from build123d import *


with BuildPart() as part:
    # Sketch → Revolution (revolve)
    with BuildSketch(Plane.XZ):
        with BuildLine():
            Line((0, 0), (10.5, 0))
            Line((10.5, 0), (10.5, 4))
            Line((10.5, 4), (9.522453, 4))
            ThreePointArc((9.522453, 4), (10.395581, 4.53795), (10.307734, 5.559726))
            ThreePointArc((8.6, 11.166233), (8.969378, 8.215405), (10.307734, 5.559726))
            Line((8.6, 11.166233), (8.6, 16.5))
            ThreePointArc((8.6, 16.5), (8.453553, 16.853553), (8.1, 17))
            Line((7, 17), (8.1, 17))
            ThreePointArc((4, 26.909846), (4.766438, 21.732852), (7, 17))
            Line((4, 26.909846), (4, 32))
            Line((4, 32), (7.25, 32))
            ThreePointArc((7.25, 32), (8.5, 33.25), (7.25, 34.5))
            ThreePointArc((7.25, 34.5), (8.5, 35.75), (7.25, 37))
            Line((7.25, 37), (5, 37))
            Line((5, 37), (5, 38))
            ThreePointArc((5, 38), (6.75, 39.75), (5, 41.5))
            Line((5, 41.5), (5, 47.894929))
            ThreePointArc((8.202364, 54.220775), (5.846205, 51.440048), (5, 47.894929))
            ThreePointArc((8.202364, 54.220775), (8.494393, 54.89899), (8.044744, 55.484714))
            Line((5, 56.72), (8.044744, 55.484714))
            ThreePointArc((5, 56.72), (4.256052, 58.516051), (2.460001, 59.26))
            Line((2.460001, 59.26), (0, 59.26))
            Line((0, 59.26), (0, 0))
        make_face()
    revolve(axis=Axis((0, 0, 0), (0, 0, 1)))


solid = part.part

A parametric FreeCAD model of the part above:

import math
import FreeCAD as App
import Part
import Sketcher

doc = App.newDocument("Part")
body = doc.addObject("PartDesign::Body", "Body")

# Sketch on XZ plane
sketch1 = doc.addObject("Sketcher::SketchObject", "Sketch")
body.addObject(sketch1)
sketch1.AttachmentSupport = (doc.XZ_Plane, [""])
sketch1.MapMode = "FlatFace"
sketch1.addGeometry([
    Part.LineSegment(App.Vector(0, 0, 0), App.Vector(10.5, 0, 0)),  # 0
    Part.LineSegment(App.Vector(10.5, 0, 0), App.Vector(10.5, 4, 0)),  # 1
    Part.LineSegment(App.Vector(10.5, 4, 0), App.Vector(9.5, 4, 0)),  # 2
    Part.ArcOfCircle(Part.Circle(App.Vector(9.5, 5, 0), App.Vector(0, 0, 1), 1), math.radians(-90), math.radians(37)),  # 3
    Part.ArcOfCircle(Part.Circle(App.Vector(17.3, 10.8, 0), App.Vector(0, 0, 1), 8.7), math.radians(177), math.radians(217)),  # 4
    Part.LineSegment(App.Vector(8.6, 11.2, 0), App.Vector(8.6, 16.5, 0)),  # 5
    Part.ArcOfCircle(Part.Circle(App.Vector(8.1, 16.5, 0), App.Vector(0, 0, 1), 0.5), math.radians(0), math.radians(90)),  # 6
    Part.LineSegment(App.Vector(8.1, 17, 0), App.Vector(7, 17, 0)),  # 7
    Part.ArcOfCircle(Part.Circle(App.Vector(21.9, 26.9, 0), App.Vector(0, 0, 1), 17.9), math.radians(180), math.radians(214)),  # 8
    Part.LineSegment(App.Vector(4, 26.9, 0), App.Vector(4, 32, 0)),  # 9
    Part.LineSegment(App.Vector(4, 32, 0), App.Vector(7.2, 32, 0)),  # 10
    Part.ArcOfCircle(Part.Circle(App.Vector(7.2, 33.2, 0), App.Vector(0, 0, 1), 1.2), math.radians(-90), math.radians(90)),  # 11
    Part.ArcOfCircle(Part.Circle(App.Vector(7.2, 35.8, 0), App.Vector(0, 0, 1), 1.2), math.radians(-90), math.radians(90)),  # 12
    Part.LineSegment(App.Vector(7.2, 37, 0), App.Vector(5, 37, 0)),  # 13
    Part.LineSegment(App.Vector(5, 37, 0), App.Vector(5, 38, 0)),  # 14
    Part.ArcOfCircle(Part.Circle(App.Vector(5, 39.8, 0), App.Vector(0, 0, 1), 1.8), math.radians(-90), math.radians(90)),  # 15
    Part.LineSegment(App.Vector(5, 41.5, 0), App.Vector(5, 47.9, 0)),  # 16
    Part.ArcOfCircle(Part.Circle(App.Vector(12.8, 47.9, 0), App.Vector(0, 0, 1), 7.8), math.radians(126), math.radians(180)),  # 17
    Part.ArcOfCircle(Part.Circle(App.Vector(7.8, 54.8, 0), App.Vector(0, 0, 1), 0.7), math.radians(-54), math.radians(68)),  # 18
    Part.LineSegment(App.Vector(8, 55.5, 0), App.Vector(5, 56.7, 0)),  # 19
    Part.ArcOfCircle(Part.Circle(App.Vector(2.5, 56.7, 0), App.Vector(0, 0, 1), 2.5), math.radians(0), math.radians(90)),  # 20
    Part.LineSegment(App.Vector(2.5, 59.3, 0), App.Vector(0, 59.3, 0)),  # 21
    Part.LineSegment(App.Vector(0, 59.3, 0), App.Vector(0, 0, 0)),  # 22
], False)
sketch1.addConstraint([
    Sketcher.Constraint("Coincident", 0, 2, 1, 1),
    Sketcher.Constraint("Coincident", 1, 2, 2, 1),
    Sketcher.Constraint("Tangent", 2, 2, 3, 1),
    Sketcher.Constraint("Tangent", 3, 2, 4, 2),
    Sketcher.Constraint("Coincident", 4, 1, 5, 1),
    Sketcher.Constraint("Coincident", 5, 2, 6, 1),
    Sketcher.Constraint("Coincident", 6, 2, 7, 1),
    Sketcher.Constraint("Coincident", 7, 2, 8, 2),
    Sketcher.Constraint("Tangent", 8, 1, 9, 1),
    Sketcher.Constraint("Coincident", 9, 2, 10, 1),
    Sketcher.Constraint("Tangent", 10, 2, 11, 1),
    Sketcher.Constraint("Tangent", 11, 2, 12, 1),
    Sketcher.Constraint("Tangent", 12, 2, 13, 1),
    Sketcher.Constraint("Coincident", 13, 2, 14, 1),
    Sketcher.Constraint("Coincident", 14, 2, 15, 1),
    Sketcher.Constraint("Coincident", 15, 2, 16, 1),
    Sketcher.Constraint("Tangent", 16, 2, 17, 2),
    Sketcher.Constraint("Tangent", 17, 1, 18, 1),
    Sketcher.Constraint("Tangent", 18, 2, 19, 1),
    Sketcher.Constraint("Coincident", 19, 2, 20, 1),
    Sketcher.Constraint("Tangent", 20, 2, 21, 1),
    Sketcher.Constraint("Coincident", 21, 2, 22, 1),
    Sketcher.Constraint("Coincident", 22, 2, 0, 1),
    Sketcher.Constraint("Horizontal", 0),
    Sketcher.Constraint("Vertical", 1),
    Sketcher.Constraint("Horizontal", 2),
    Sketcher.Constraint("Vertical", 5),
    Sketcher.Constraint("Horizontal", 7),
    Sketcher.Constraint("Vertical", 9),
    Sketcher.Constraint("Horizontal", 10),
    Sketcher.Constraint("Horizontal", 13),
    Sketcher.Constraint("Vertical", 14),
    Sketcher.Constraint("Vertical", 16),
    Sketcher.Constraint("Horizontal", 21),
    Sketcher.Constraint("Vertical", 22),
    Sketcher.Constraint("Coincident", 22, 2, -1, 1),
    Sketcher.Constraint("Equal", 11, 12),
    Sketcher.Constraint("Horizontal", 6, 3, 5, 2),
    Sketcher.Constraint("Horizontal", 20, 3, 19, 2),
    Sketcher.Constraint("Vertical", 11, 3, 12, 3),
    Sketcher.Constraint("Vertical", 15, 3, 13, 2),
    Sketcher.Constraint("Vertical", 14, 2, 15, 2),
    Sketcher.Constraint("Vertical", 16, 2, 19, 2),
    Sketcher.Constraint("Radius", 6, 0.500001),
    Sketcher.Constraint("DistanceY", 1, 1, 1, 2, 4.0),
    Sketcher.Constraint("DistanceY", 14, 1, 14, 2, 1.0),
    Sketcher.Constraint("Radius", 11, 1.25),
    Sketcher.Constraint("Radius", 15, 1.75),
    Sketcher.Constraint("Radius", 20, 2.539999),
    Sketcher.Constraint("DistanceX", 0, 1, 0, 2, 10.5),
    Sketcher.Constraint("DistanceX", 7, 2, 7, 1, 1.1),
    Sketcher.Constraint("DistanceX", -1, 1, 15, 3, 5.0),
    Sketcher.Constraint("DistanceY", -1, 1, 6, 2, 17.0),
    Sketcher.Constraint("DistanceX", -1, 1, 7, 2, 7.0),
    Sketcher.Constraint("DistanceX", -1, 1, 8, 1, 4.0),
    Sketcher.Constraint("DistanceY", -1, 1, 9, 2, 32.0),
    Sketcher.Constraint("DistanceX", 10, 1, 10, 2, 3.25),
    Sketcher.Constraint("DistanceY", 22, 2, 22, 1, 59.26),
    Sketcher.Constraint("DistanceX", -1, 1, 6, 3, 8.099999),
    Sketcher.Constraint("Radius", 4, 8.730918),
    Sketcher.Constraint("Radius", 3, 0.977547),
    Sketcher.Constraint("Radius", 8, 17.867495),
    Sketcher.Constraint("Radius", 17, 7.849114),
    Sketcher.Constraint("Radius", 18, 0.729516),
    Sketcher.Constraint("DistanceY", 18, 3, 18, 2, 0.675999),
    Sketcher.Constraint("DistanceY", 16, 1, 16, 2, 6.394929),
    Sketcher.Constraint("DistanceX", 2, 2, 2, 1, 0.977547),
    Sketcher.Constraint("DistanceY", 5, 1, 5, 2, 5.333767),
])
revolution = doc.addObject("PartDesign::Revolution", "Revolution")
body.addObject(revolution)
revolution.Profile = sketch1
revolution.ReferenceAxis = (sketch1, ["V_Axis"])
revolution.Angle = 360

doc.recompute()
